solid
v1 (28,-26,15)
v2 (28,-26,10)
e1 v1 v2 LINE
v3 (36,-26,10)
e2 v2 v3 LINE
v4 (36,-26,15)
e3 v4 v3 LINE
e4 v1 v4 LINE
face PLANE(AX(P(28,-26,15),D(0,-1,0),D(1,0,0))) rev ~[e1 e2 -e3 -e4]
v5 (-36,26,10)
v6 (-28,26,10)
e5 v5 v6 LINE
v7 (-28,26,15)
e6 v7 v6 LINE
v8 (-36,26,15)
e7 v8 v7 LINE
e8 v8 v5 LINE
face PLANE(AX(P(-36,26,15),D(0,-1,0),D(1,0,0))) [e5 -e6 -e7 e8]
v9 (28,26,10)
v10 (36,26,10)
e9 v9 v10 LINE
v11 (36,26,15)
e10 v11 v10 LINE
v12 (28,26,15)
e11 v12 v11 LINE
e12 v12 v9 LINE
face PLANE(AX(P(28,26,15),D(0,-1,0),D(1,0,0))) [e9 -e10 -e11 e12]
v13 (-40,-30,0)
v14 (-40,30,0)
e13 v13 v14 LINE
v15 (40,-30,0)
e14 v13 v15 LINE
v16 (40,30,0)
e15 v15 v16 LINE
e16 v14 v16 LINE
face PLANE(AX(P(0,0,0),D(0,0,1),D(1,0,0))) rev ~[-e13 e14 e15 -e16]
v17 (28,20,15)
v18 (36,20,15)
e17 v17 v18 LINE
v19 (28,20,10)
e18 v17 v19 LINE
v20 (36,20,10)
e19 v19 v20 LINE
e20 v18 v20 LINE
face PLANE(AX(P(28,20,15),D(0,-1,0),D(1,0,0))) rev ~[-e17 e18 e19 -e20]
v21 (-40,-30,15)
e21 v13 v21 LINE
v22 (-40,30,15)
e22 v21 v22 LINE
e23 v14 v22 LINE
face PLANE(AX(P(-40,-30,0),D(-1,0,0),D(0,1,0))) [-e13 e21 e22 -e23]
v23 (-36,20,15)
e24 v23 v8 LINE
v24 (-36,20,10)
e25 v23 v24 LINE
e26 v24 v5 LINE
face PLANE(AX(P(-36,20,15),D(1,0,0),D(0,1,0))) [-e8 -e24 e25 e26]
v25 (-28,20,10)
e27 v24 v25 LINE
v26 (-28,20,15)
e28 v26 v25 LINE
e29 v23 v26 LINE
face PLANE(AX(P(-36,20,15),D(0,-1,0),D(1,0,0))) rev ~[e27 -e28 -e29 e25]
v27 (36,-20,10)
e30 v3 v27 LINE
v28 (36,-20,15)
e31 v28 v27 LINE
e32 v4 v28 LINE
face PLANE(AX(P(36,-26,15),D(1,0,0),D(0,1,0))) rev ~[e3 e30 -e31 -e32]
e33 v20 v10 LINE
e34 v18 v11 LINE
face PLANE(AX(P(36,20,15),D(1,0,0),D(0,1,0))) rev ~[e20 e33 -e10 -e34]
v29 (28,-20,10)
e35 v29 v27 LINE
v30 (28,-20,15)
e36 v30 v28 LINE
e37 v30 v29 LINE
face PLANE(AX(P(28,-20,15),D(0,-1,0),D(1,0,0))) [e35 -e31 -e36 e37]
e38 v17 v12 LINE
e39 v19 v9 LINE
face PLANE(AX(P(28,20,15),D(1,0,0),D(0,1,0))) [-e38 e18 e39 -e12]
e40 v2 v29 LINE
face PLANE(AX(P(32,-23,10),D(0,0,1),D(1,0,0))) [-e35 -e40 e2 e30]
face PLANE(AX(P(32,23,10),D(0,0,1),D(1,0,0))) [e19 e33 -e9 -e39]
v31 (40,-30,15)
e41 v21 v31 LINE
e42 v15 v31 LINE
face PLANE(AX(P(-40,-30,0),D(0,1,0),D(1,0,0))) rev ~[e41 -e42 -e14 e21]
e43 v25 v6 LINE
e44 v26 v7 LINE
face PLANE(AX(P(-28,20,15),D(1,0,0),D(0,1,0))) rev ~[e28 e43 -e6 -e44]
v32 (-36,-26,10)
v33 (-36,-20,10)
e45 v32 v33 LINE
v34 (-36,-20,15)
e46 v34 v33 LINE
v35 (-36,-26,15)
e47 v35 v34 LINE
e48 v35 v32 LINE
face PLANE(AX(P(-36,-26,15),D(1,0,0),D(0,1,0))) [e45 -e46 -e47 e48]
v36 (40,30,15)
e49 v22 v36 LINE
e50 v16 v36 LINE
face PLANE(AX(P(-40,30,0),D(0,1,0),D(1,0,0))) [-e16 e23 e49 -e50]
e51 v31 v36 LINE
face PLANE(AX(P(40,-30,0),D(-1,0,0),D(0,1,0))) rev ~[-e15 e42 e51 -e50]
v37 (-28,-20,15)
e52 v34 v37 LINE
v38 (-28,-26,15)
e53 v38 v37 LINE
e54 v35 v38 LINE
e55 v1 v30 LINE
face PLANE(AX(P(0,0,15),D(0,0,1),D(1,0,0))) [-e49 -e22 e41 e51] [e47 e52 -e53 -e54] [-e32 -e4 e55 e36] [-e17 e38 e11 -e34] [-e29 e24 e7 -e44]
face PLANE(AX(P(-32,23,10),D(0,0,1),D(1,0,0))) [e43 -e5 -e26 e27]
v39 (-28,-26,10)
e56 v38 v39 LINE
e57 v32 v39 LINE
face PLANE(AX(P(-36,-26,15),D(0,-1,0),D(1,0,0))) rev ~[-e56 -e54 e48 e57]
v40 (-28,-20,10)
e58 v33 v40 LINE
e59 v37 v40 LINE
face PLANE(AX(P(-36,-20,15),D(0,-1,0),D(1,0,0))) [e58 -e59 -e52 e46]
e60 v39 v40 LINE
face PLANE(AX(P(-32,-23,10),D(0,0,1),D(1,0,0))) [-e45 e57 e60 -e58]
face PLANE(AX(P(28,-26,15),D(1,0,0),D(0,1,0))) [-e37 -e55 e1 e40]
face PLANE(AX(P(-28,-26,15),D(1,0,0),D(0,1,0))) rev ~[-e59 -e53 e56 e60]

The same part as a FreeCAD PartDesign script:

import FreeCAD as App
import Part
import Sketcher
from FreeCAD import Vector
Q = App.Units.Quantity

doc = App.newDocument("Part")
body = doc.addObject("PartDesign::Body", "Body")

# Sketch on XY plane
sketch1 = doc.addObject("Sketcher::SketchObject", "Sketch")
body.addObject(sketch1)
sketch1.AttachmentSupport = (doc.XY_Plane, [""])
sketch1.MapMode = "FlatFace"
sketch1.addGeometry([
    Part.LineSegment(Vector(-40, 30, 0), Vector(-40, -30, 0)),
    Part.LineSegment(Vector(-40, -30, 0), Vector(40, -30, 0)),
    Part.LineSegment(Vector(40, -30, 0), Vector(40, 30, 0)),
    Part.LineSegment(Vector(40, 30, 0), Vector(-40, 30, 0)),
], False)
sketch1.addConstraint([
    Sketcher.Constraint("Coincident", 0, 2, 1, 1),
    Sketcher.Constraint("Coincident", 1, 2, 2, 1),
    Sketcher.Constraint("Coincident", 2, 2, 3, 1),
    Sketcher.Constraint("Coincident", 3, 2, 0, 1),
    Sketcher.Constraint("Vertical", 0),
    Sketcher.Constraint("Horizontal", 1),
    Sketcher.Constraint("Vertical", 2),
    Sketcher.Constraint("Horizontal", 3),
    Sketcher.Constraint("Symmetric", 0, 2, 2, 2, -1, 1),
    Sketcher.Constraint("DistanceX", 1, 1, 1, 2, Q("80 mm")),
    Sketcher.Constraint("DistanceY", 0, 2, 0, 1, Q("60 mm")),
])
pad1 = doc.addObject("PartDesign::Pad", "Pad")
body.addObject(pad1)
pad1.Profile = sketch1
pad1.Length = 15

# Sketch on XY plane
sketch2 = doc.addObject("Sketcher::SketchObject", "Sketch001")
body.addObject(sketch2)
sketch2.AttachmentSupport = (doc.XY_Plane, [""])
sketch2.MapMode = "FlatFace"
sketch2.AttachmentOffset = App.Placement(Vector(0, 0, 15), App.Rotation())
sketch2.addGeometry([
    Part.LineSegment(Vector(-36, 26, 0), Vector(-36, 20, 0)),  # 0
    Part.LineSegment(Vector(-36, 20, 0), Vector(-28, 20, 0)),  # 1
    Part.LineSegment(Vector(-28, 20, 0), Vector(-28, 26, 0)),  # 2
    Part.LineSegment(Vector(-28, 26, 0), Vector(-36, 26, 0)),  # 3
    Part.LineSegment(Vector(28, 26, 0), Vector(28, 20, 0)),  # 4
    Part.LineSegment(Vector(28, 20, 0), Vector(36, 20, 0)),  # 5
    Part.LineSegment(Vector(36, 20, 0), Vector(36, 26, 0)),  # 6
    Part.LineSegment(Vector(36, 26, 0), Vector(28, 26, 0)),  # 7
    Part.LineSegment(Vector(28, -20, 0), Vector(28, -26, 0)),  # 8
    Part.LineSegment(Vector(28, -26, 0), Vector(36, -26, 0)),  # 9
    Part.LineSegment(Vector(36, -26, 0), Vector(36, -20, 0)),  # 10
    Part.LineSegment(Vector(36, -20, 0), Vector(28, -20, 0)),  # 11
    Part.LineSegment(Vector(-36, -20, 0), Vector(-36, -26, 0)),  # 12
    Part.LineSegment(Vector(-36, -26, 0), Vector(-28, -26, 0)),  # 13
    Part.LineSegment(Vector(-28, -26, 0), Vector(-28, -20, 0)),  # 14
    Part.LineSegment(Vector(-28, -20, 0), Vector(-36, -20, 0)),  # 15
], False)
sketch2.addConstraint([
    Sketcher.Constraint("Coincident", 0, 2, 1, 1),
    Sketcher.Constraint("Coincident", 1, 2, 2, 1),
    Sketcher.Constraint("Coincident", 2, 2, 3, 1),
    Sketcher.Constraint("Coincident", 3, 2, 0, 1),
    Sketcher.Constraint("Coincident", 4, 2, 5, 1),
    Sketcher.Constraint("Coincident", 5, 2, 6, 1),
    Sketcher.Constraint("Coincident", 6, 2, 7, 1),
    Sketcher.Constraint("Coincident", 7, 2, 4, 1),
    Sketcher.Constraint("Coincident", 8, 2, 9, 1),
    Sketcher.Constraint("Coincident", 9, 2, 10, 1),
    Sketcher.Constraint("Coincident", 10, 2, 11, 1),
    Sketcher.Constraint("Coincident", 11, 2, 8, 1),
    Sketcher.Constraint("Coincident", 12, 2, 13, 1),
    Sketcher.Constraint("Coincident", 13, 2, 14, 1),
    Sketcher.Constraint("Coincident", 14, 2, 15, 1),
    Sketcher.Constraint("Coincident", 15, 2, 12, 1),
    Sketcher.Constraint("Vertical", 0),
    Sketcher.Constraint("Horizontal", 1),
    Sketcher.Constraint("Vertical", 2),
    Sketcher.Constraint("Horizontal", 3),
    Sketcher.Constraint("Vertical", 4),
    Sketcher.Constraint("Horizontal", 5),
    Sketcher.Constraint("Vertical", 6),
    Sketcher.Constraint("Horizontal", 7),
    Sketcher.Constraint("Vertical", 8),
    Sketcher.Constraint("Horizontal", 9),
    Sketcher.Constraint("Vertical", 10),
    Sketcher.Constraint("Horizontal", 11),
    Sketcher.Constraint("Vertical", 12),
    Sketcher.Constraint("Horizontal", 13),
    Sketcher.Constraint("Vertical", 14),
    Sketcher.Constraint("Horizontal", 15),
    Sketcher.Constraint("Symmetric", 2, 2, 8, 2, -1, 1),
    Sketcher.Constraint("Symmetric", 0, 2, 10, 2, -1, 1),
    Sketcher.Constraint("Symmetric", 6, 2, 12, 2, -1, 1),
    Sketcher.Constraint("Symmetric", 4, 2, 14, 2, -1, 1),
    Sketcher.Constraint("Symmetric", 1, 2, 4, 2, -2),
    Sketcher.Constraint("Symmetric", 3, 2, 6, 2, -2),
    Sketcher.Constraint("DistanceX", 1, 1, 1, 2, Q("8 mm")),
    Sketcher.Constraint("DistanceY", 0, 2, 0, 1, Q("6 mm")),
    Sketcher.Constraint("DistanceX", 0, 2, -1, 1, Q("36 mm")),
    Sketcher.Constraint("DistanceY", -1, 1, 0, 2, Q("20 mm")),
])
pocket1 = doc.addObject("PartDesign::Pocket", "Pocket")
body.addObject(pocket1)
pocket1.Profile = sketch2
pocket1.Length = 5

doc.recompute()
